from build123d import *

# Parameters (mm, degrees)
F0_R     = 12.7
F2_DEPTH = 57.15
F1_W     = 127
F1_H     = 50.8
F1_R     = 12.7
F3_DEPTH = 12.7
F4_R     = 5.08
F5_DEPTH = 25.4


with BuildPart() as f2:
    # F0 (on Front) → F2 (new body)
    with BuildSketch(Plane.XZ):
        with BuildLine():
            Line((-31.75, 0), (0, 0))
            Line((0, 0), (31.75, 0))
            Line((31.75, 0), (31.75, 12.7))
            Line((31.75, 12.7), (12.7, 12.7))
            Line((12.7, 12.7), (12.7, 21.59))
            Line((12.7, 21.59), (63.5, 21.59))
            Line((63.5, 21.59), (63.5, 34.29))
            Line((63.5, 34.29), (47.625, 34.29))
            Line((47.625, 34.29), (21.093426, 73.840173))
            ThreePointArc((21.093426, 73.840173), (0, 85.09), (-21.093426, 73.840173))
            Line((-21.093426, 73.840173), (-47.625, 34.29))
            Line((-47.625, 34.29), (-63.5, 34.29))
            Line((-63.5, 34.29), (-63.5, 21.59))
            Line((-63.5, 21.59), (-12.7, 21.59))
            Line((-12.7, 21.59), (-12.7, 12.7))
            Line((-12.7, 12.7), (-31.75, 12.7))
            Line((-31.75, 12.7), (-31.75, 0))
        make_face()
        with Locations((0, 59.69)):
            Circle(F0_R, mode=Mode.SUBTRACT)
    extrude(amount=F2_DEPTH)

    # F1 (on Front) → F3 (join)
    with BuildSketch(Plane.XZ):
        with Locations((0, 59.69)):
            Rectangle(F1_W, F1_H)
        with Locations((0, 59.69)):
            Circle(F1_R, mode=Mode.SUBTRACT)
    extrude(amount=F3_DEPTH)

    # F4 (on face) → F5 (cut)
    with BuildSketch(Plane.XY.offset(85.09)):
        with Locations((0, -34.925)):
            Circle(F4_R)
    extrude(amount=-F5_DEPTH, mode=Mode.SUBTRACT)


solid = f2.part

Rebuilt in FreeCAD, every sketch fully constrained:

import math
import FreeCAD as App
import Part
import Sketcher

V = App.Vector
Q = App.Units.Quantity

doc = App.newDocument("Part")
body = doc.addObject("PartDesign::Body", "Body")

sketch1 = body.newObject("Sketcher::SketchObject", "Sketch")
sketch1.AttachmentSupport = (doc.getObject("XZ_Plane"), [""])
sketch1.MapMode = "FlatFace"
sketch1.addGeometry(Part.LineSegment(V(-32, 0, 0), V(32, 0, 0)), False)
sketch1.addGeometry(Part.LineSegment(V(32, 0, 0), V(32, 13, 0)), False)
sketch1.addGeometry(Part.LineSegment(V(32, 13, 0), V(13, 13, 0)), False)
sketch1.addGeometry(Part.LineSegment(V(13, 13, 0), V(13, 22, 0)), False)
sketch1.addGeometry(Part.LineSegment(V(13, 22, 0), V(64, 22, 0)), False)
sketch1.addGeometry(Part.LineSegment(V(64, 22, 0), V(64, 34, 0)), False)
sketch1.addGeometry(Part.LineSegment(V(64, 34, 0), V(48, 34, 0)), False)
sketch1.addGeometry(Part.LineSegment(V(48, 34, 0), V(21, 74, 0)), False)
sketch1.addGeometry(Part.ArcOfCircle(Part.Circle(V(0, 60, 0), V(0, 0, 1), 25), math.radians(34), math.radians(146)), False)
sketch1.addGeometry(Part.LineSegment(V(-21, 74, 0), V(-48, 34, 0)), False)
sketch1.addGeometry(Part.LineSegment(V(-48, 34, 0), V(-64, 34, 0)), False)
sketch1.addGeometry(Part.LineSegment(V(-64, 34, 0), V(-64, 22, 0)), False)
sketch1.addGeometry(Part.LineSegment(V(-64, 22, 0), V(-13, 22, 0)), False)
sketch1.addGeometry(Part.LineSegment(V(-13, 22, 0), V(-13, 13, 0)), False)
sketch1.addGeometry(Part.LineSegment(V(-13, 13, 0), V(-32, 13, 0)), False)
sketch1.addGeometry(Part.LineSegment(V(-32, 13, 0), V(-32, 0, 0)), False)
sketch1.addGeometry(Part.Circle(V(0, 60, 0), V(0, 0, 1), 13), False)
sketch1.addConstraint(Sketcher.Constraint("Coincident", 0, 2, 1, 1))
sketch1.addConstraint(Sketcher.Constraint("Coincident", 1, 2, 2, 1))
sketch1.addConstraint(Sketcher.Constraint("Coincident", 2, 2, 3, 1))
sketch1.addConstraint(Sketcher.Constraint("Coincident", 3, 2, 4, 1))
sketch1.addConstraint(Sketcher.Constraint("Coincident", 4, 2, 5, 1))
sketch1.addConstraint(Sketcher.Constraint("Coincident", 5, 2, 6, 1))
sketch1.addConstraint(Sketcher.Constraint("Coincident", 6, 2, 7, 1))
sketch1.addConstraint(Sketcher.Constraint("Tangent", 7, 2, 8, 1))
sketch1.addConstraint(Sketcher.Constraint("Tangent", 8, 2, 9, 1))
sketch1.addConstraint(Sketcher.Constraint("Coincident", 9, 2, 10, 1))
sketch1.addConstraint(Sketcher.Constraint("Coincident", 10, 2, 11, 1))
sketch1.addConstraint(Sketcher.Constraint("Coincident", 11, 2, 12, 1))
sketch1.addConstraint(Sketcher.Constraint("Coincident", 12, 2, 13, 1))
sketch1.addConstraint(Sketcher.Constraint("Coincident", 13, 2, 14, 1))
sketch1.addConstraint(Sketcher.Constraint("Coincident", 14, 2, 15, 1))
sketch1.addConstraint(Sketcher.Constraint("Coincident", 15, 2, 0, 1))
sketch1.addConstraint(Sketcher.Constraint("Horizontal", 0))
sketch1.addConstraint(Sketcher.Constraint("Vertical", 1))
sketch1.addConstraint(Sketcher.Constraint("Horizontal", 2))
sketch1.addConstraint(Sketcher.Constraint("Vertical", 3))
sketch1.addConstraint(Sketcher.Constraint("Horizontal", 4))
sketch1.addConstraint(Sketcher.Constraint("Vertical", 5))
sketch1.addConstraint(Sketcher.Constraint("Horizontal", 6))
sketch1.addConstraint(Sketcher.Constraint("Horizontal", 10))
sketch1.addConstraint(Sketcher.Constraint("Vertical", 11))
sketch1.addConstraint(Sketcher.Constraint("Horizontal", 12))
sketch1.addConstraint(Sketcher.Constraint("Vertical", 13))
sketch1.addConstraint(Sketcher.Constraint("Horizontal", 14))
sketch1.addConstraint(Sketcher.Constraint("Vertical", 15))
sketch1.addConstraint(Sketcher.Constraint("Coincident", 16, 3, 8, 3))
sketch1.addConstraint(Sketcher.Constraint("Symmetric", 0, 2, 15, 2, -1, 1))
sketch1.addConstraint(Sketcher.Constraint("Symmetric", 7, 2, 8, 2, -2))
sketch1.addConstraint(Sketcher.Constraint("Symmetric", 5, 2, 10, 2, -2))
sketch1.addConstraint(Sketcher.Constraint("Symmetric", 3, 2, 12, 2, -2))
sketch1.addConstraint(Sketcher.Constraint("Horizontal", 2, 2, 13, 2))
sketch1.addConstraint(Sketcher.Constraint("Equal", 1, 5))
sketch1.addConstraint(Sketcher.Constraint("Diameter", 16, Q("1 in")))
sketch1.addConstraint(Sketcher.Constraint("Radius", 8, Q("1 in")))
sketch1.addConstraint(Sketcher.Constraint("DistanceX", 4, 1, 4, 2, Q("2 in")))
sketch1.addConstraint(Sketcher.Constraint("DistanceX", 0, 1, 0, 2, Q("2.5 in")))
sketch1.addConstraint(Sketcher.Constraint("DistanceY", 1, 1, 1, 2, Q("0.5 in")))
sketch1.addConstraint(Sketcher.Constraint("DistanceY", 9, 2, 8, 3, Q("1 in")))
sketch1.addConstraint(Sketcher.Constraint("DistanceX", 10, 2, 3, 2, Q("3 in")))
sketch1.addConstraint(Sketcher.Constraint("DistanceY", 3, 1, 3, 2, Q("0.35 in")))
sketch1.addConstraint(Sketcher.Constraint("DistanceX", 6, 2, 6, 1, Q("0.625 in")))
pad1 = body.newObject("PartDesign::Pad", "Pad")
pad1.Profile = sketch1
pad1.Length = Q("2.25 in")

sketch2 = body.newObject("Sketcher::SketchObject", "Sketch001")
sketch2.AttachmentSupport = (doc.getObject("XZ_Plane"), [""])
sketch2.MapMode = "FlatFace"
sketch2.addGeometry(Part.LineSegment(V(-64, 85, 0), V(-64, 34, 0)), False)
sketch2.addGeometry(Part.LineSegment(V(-64, 34, 0), V(64, 34, 0)), False)
sketch2.addGeometry(Part.LineSegment(V(64, 34, 0), V(64, 85, 0)), False)
sketch2.addGeometry(Part.LineSegment(V(64, 85, 0), V(-64, 85, 0)), False)
sketch2.addGeometry(Part.Circle(V(0, 60, 0), V(0, 0, 1), 13), False)
sketch2.addConstraint(Sketcher.Constraint("Coincident", 0, 2, 1, 1))
sketch2.addConstraint(Sketcher.Constraint("Coincident", 1, 2, 2, 1))
sketch2.addConstraint(Sketcher.Constraint("Coincident", 2, 2, 3, 1))
sketch2.addConstraint(Sketcher.Constraint("Coincident", 3, 2, 0, 1))
sketch2.addConstraint(Sketcher.Constraint("Vertical", 0))
sketch2.addConstraint(Sketcher.Constraint("Horizontal", 1))
sketch2.addConstraint(Sketcher.Constraint("Vertical", 2))
sketch2.addConstraint(Sketcher.Constraint("Horizontal", 3))
sketch2.addConstraint(Sketcher.Constraint("PointOnObject", 4, 3, -2))
sketch2.addConstraint(Sketcher.Constraint("Diameter", 4, Q("1 in")))
sketch2.addConstraint(Sketcher.Constraint("DistanceX", 1, 1, 1, 2, Q("5 in")))
sketch2.addConstraint(Sketcher.Constraint("DistanceY", 0, 2, 0, 1, Q("2 in")))
sketch2.addConstraint(Sketcher.Constraint("DistanceY", 0, 2, 4, 3, Q("1 in")))
sketch2.addConstraint(Sketcher.Constraint("DistanceX", 0, 2, -1, 1, Q("2.5 in")))
sketch2.addConstraint(Sketcher.Constraint("DistanceY", -1, 1, 4, 3, Q("2.35 in")))
pad2 = body.newObject("PartDesign::Pad", "Pad001")
pad2.Profile = sketch2
pad2.Length = Q("0.5 in")

sketch3 = body.newObject("Sketcher::SketchObject", "Sketch002")
sketch3.AttachmentSupport = (doc.getObject("XY_Plane"), [""])
sketch3.MapMode = "FlatFace"
sketch3.AttachmentOffset = App.Placement(V(0, 0, 3.35 * 25.4), App.Rotation())
sketch3.addGeometry(Part.Circle(V(0, -35, 0), V(0, 0, 1), 5), False)
sketch3.addConstraint(Sketcher.Constraint("PointOnObject", 0, 3, -2))
sketch3.addConstraint(Sketcher.Constraint("Diameter", 0, Q("0.4 in")))
sketch3.addConstraint(Sketcher.Constraint("DistanceY", 0, 3, -1, 1, Q("1.375 in")))
pocket1 = body.newObject("PartDesign::Pocket", "Pocket")
pocket1.Profile = sketch3
pocket1.Length = Q("1 in")

doc.recompute()
